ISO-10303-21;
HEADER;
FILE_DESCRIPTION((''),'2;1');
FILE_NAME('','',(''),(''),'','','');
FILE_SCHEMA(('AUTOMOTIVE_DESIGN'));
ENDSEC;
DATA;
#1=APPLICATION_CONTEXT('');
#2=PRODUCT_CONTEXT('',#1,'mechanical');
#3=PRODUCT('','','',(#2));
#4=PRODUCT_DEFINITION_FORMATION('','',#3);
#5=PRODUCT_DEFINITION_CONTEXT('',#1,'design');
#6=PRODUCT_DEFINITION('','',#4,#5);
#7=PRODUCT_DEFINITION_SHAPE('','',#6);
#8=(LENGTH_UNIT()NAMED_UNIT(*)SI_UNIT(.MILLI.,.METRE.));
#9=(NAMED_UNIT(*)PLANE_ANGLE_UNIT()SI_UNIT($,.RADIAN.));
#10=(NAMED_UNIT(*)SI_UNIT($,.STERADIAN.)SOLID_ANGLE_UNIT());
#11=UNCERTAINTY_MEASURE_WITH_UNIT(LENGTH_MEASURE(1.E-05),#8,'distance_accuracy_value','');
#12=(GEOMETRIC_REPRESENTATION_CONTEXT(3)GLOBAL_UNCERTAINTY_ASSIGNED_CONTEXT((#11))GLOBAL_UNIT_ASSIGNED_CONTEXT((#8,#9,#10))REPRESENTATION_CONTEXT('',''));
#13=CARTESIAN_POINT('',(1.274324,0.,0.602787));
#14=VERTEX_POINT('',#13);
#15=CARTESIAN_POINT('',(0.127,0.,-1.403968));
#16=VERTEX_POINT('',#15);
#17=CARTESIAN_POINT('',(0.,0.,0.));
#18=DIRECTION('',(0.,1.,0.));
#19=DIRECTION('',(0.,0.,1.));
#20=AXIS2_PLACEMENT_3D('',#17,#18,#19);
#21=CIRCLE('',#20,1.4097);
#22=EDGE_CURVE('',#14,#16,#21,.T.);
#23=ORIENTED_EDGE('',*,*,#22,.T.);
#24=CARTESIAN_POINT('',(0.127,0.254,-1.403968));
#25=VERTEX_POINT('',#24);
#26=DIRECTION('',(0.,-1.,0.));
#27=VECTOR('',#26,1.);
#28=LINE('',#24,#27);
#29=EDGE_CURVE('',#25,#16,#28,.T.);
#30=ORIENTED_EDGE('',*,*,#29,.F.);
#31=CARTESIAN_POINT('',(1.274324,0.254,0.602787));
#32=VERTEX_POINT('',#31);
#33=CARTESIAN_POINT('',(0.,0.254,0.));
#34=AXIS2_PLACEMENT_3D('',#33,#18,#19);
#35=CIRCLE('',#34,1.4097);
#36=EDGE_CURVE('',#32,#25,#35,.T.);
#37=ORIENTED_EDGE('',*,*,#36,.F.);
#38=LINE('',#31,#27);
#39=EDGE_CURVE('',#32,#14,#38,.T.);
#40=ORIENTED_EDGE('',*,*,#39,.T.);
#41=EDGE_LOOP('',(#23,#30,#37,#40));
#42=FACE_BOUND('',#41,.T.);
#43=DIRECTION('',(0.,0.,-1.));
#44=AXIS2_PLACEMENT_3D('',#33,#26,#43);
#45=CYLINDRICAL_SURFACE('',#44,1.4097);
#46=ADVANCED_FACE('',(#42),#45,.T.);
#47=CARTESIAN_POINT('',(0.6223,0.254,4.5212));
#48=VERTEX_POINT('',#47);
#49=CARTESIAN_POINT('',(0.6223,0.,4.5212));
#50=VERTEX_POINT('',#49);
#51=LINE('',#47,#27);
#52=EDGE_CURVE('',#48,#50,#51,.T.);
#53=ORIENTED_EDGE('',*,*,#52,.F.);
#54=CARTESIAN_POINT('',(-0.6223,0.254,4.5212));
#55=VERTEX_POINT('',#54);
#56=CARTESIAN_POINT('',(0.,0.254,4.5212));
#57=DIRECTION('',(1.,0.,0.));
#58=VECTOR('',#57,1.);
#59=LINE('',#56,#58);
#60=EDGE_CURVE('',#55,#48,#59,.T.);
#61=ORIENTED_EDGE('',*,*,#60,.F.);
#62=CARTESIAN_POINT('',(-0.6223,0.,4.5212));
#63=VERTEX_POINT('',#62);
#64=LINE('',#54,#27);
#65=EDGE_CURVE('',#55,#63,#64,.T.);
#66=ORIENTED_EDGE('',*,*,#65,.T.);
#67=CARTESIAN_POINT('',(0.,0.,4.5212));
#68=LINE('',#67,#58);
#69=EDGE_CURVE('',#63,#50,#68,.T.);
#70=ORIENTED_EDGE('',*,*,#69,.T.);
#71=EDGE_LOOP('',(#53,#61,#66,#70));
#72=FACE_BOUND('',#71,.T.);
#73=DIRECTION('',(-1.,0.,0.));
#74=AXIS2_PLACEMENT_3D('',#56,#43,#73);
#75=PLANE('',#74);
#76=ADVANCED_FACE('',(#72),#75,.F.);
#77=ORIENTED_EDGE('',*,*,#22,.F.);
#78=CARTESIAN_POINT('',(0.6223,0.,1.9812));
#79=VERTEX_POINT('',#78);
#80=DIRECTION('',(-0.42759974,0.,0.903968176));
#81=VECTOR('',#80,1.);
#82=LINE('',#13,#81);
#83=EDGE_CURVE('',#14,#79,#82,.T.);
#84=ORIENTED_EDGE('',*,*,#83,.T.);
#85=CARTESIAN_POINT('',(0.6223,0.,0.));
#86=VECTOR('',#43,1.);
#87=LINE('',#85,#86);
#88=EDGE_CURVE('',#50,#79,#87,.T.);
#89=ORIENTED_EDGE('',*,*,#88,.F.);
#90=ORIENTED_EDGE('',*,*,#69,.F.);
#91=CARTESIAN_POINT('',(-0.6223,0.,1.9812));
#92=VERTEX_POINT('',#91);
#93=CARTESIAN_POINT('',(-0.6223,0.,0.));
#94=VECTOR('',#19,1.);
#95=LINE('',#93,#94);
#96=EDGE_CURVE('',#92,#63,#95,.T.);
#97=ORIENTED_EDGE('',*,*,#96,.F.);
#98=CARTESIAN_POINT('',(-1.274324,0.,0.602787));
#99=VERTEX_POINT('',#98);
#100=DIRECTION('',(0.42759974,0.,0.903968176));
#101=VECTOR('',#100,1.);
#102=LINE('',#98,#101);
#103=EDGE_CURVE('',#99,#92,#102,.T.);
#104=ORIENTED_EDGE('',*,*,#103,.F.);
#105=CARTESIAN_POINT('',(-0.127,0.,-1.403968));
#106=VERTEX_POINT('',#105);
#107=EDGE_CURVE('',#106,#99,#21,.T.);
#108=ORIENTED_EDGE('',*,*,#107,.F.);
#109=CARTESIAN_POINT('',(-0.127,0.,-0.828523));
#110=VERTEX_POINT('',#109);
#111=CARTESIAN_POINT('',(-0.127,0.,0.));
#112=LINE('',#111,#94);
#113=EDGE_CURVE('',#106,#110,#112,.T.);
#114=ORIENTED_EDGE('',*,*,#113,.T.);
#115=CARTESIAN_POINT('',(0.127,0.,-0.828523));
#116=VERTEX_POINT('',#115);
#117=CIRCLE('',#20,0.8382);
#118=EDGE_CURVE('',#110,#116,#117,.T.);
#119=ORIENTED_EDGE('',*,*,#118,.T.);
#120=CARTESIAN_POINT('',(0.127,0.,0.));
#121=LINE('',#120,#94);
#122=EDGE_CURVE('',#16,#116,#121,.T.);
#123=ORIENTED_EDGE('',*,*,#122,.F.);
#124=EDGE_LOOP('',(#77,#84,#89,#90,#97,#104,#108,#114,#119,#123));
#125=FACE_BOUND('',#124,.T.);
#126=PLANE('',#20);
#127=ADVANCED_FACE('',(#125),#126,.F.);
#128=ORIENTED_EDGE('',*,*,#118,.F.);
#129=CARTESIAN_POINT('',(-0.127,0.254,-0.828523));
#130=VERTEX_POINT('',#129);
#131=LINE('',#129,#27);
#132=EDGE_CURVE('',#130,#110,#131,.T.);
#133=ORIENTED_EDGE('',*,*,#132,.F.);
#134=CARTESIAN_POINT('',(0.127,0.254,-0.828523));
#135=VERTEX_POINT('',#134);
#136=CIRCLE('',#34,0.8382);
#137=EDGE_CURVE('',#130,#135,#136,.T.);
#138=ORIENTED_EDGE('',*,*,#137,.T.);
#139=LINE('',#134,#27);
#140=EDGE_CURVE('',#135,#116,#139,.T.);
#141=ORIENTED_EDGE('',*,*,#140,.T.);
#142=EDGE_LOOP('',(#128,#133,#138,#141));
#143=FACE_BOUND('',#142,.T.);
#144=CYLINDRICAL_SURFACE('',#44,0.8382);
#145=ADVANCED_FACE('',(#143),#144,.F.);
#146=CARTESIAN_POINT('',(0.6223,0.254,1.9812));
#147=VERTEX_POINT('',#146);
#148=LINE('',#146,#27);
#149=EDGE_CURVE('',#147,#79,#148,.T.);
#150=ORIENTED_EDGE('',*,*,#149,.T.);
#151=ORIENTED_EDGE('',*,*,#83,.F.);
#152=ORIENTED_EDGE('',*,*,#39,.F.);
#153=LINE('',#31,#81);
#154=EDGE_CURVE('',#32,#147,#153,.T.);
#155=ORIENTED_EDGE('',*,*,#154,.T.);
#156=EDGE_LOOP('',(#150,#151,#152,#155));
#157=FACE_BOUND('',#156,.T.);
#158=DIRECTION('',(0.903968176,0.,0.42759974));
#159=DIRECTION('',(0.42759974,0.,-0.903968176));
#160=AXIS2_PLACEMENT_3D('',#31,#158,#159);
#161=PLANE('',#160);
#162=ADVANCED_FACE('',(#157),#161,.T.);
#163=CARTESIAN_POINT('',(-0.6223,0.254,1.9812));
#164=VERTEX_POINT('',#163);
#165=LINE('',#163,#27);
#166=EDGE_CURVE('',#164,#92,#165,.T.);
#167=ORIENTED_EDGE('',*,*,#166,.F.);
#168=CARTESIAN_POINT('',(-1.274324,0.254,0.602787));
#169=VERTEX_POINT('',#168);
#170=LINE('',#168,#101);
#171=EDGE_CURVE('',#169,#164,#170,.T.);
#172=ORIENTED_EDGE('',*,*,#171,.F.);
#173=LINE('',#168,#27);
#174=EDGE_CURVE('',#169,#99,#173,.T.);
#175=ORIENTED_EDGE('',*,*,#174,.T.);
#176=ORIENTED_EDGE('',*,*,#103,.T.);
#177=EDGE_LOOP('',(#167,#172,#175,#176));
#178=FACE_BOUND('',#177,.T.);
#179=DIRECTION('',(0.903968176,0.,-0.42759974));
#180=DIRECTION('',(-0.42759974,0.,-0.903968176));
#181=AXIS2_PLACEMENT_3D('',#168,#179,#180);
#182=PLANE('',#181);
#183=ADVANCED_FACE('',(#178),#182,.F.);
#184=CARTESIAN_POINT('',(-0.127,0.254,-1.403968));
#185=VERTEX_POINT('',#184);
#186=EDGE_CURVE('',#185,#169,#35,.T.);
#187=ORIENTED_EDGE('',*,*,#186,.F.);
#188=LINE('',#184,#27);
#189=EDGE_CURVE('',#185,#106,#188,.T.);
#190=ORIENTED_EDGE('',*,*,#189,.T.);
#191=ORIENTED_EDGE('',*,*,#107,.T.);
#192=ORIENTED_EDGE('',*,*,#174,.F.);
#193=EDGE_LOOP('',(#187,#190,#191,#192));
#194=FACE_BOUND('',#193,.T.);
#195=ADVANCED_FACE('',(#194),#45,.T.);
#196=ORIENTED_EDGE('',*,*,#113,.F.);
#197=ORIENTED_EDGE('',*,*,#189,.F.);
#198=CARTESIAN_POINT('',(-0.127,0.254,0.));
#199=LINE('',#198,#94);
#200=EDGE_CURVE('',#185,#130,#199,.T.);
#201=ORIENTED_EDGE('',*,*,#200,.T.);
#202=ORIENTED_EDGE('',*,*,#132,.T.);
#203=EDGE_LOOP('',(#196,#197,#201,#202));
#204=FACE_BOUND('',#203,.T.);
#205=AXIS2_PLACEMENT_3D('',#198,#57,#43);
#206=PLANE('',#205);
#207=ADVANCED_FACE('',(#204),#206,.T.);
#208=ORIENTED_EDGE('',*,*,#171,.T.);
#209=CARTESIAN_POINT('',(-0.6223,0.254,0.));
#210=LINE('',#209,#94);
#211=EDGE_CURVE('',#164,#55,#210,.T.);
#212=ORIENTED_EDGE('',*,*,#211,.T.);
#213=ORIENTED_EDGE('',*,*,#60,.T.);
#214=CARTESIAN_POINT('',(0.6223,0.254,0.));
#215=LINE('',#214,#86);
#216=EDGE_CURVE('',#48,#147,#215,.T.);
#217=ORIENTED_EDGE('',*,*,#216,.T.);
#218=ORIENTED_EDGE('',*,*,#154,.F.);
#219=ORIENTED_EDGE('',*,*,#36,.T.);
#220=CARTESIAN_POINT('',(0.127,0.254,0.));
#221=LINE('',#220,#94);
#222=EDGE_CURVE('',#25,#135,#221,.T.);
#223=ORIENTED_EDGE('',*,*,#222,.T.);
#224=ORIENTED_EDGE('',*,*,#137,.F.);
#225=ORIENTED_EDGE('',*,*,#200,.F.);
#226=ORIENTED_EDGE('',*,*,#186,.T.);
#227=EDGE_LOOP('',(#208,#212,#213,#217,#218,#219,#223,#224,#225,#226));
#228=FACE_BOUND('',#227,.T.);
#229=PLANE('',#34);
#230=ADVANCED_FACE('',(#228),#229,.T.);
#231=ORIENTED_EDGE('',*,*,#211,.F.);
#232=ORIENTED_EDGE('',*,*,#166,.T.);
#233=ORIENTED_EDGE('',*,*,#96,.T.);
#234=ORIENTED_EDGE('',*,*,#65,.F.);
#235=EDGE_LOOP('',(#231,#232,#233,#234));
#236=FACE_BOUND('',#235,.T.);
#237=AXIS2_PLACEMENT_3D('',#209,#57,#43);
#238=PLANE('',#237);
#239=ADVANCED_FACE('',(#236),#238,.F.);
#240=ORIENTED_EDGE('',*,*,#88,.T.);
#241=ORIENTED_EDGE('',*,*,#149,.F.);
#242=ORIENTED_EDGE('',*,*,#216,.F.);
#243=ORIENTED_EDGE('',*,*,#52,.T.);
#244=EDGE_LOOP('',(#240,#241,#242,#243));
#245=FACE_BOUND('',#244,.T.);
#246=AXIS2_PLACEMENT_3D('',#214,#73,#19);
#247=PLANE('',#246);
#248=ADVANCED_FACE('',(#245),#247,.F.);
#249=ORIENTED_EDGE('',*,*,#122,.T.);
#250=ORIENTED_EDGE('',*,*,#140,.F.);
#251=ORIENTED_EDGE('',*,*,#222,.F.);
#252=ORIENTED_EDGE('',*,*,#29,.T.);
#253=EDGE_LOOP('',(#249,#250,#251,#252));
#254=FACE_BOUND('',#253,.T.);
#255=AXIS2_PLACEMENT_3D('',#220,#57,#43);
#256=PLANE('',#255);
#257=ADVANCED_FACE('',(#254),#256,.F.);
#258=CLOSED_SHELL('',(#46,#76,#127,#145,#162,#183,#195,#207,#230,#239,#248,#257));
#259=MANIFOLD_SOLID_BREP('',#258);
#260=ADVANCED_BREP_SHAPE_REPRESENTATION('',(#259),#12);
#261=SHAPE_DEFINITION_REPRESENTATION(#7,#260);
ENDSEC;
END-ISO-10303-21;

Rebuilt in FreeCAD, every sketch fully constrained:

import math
import FreeCAD as App
import Part
import Sketcher
from FreeCAD import Vector
Q = App.Units.Quantity

doc = App.newDocument("Part")
body = doc.addObject("PartDesign::Body", "Body")

# Sketch on XZ plane
sketch1 = body.newObject("Sketcher::SketchObject", "Sketch")
sketch1.AttachmentSupport = (doc.getObject("XZ_Plane"), [""])
sketch1.MapMode = "FlatFace"
sketch1.addGeometry([
    Part.LineSegment(Vector(0.62, 1.98, 0), Vector(1.27, 0.6, 0)),  # 0
    Part.ArcOfCircle(Part.Circle(Vector(0, 0, 0), Vector(0, 0, 1), 1.41), math.radians(-85), math.radians(25)),  # 1
    Part.LineSegment(Vector(0.13, -1.4, 0), Vector(0.13, -0.83, 0)),  # 2
    Part.ArcOfCircle(Part.Circle(Vector(0, 0, 0), Vector(0, 0, 1), 0.84), math.radians(-81), math.radians(261)),  # 3
    Part.LineSegment(Vector(-0.13, -0.83, 0), Vector(-0.13, -1.4, 0)),  # 4
    Part.ArcOfCircle(Part.Circle(Vector(0, 0, 0), Vector(0, 0, 1), 1.41), math.radians(155), math.radians(265)),  # 5
    Part.LineSegment(Vector(-1.27, 0.6, 0), Vector(-0.62, 1.98, 0)),  # 6
    Part.LineSegment(Vector(-0.62, 1.98, 0), Vector(-0.62, 4.52, 0)),  # 7
    Part.LineSegment(Vector(-0.62, 4.52, 0), Vector(0.62, 4.52, 0)),  # 8
    Part.LineSegment(Vector(0.62, 4.52, 0), Vector(0.62, 1.98, 0)),  # 9
], False)
sketch1.addConstraint([
    Sketcher.Constraint("Tangent", 0, 2, 1, 2),
    Sketcher.Constraint("Coincident", 1, 1, 2, 1),
    Sketcher.Constraint("Coincident", 2, 2, 3, 1),
    Sketcher.Constraint("Coincident", 3, 2, 4, 1),
    Sketcher.Constraint("Coincident", 4, 2, 5, 2),
    Sketcher.Constraint("Tangent", 5, 1, 6, 1),
    Sketcher.Constraint("Coincident", 6, 2, 7, 1),
    Sketcher.Constraint("Coincident", 7, 2, 8, 1),
    Sketcher.Constraint("Coincident", 8, 2, 9, 1),
    Sketcher.Constraint("Coincident", 9, 2, 0, 1),
    Sketcher.Constraint("Vertical", 2),
    Sketcher.Constraint("Vertical", 4),
    Sketcher.Constraint("Vertical", 7),
    Sketcher.Constraint("Horizontal", 8),
    Sketcher.Constraint("Vertical", 9),
    Sketcher.Constraint("Coincident", 1, 3, -1, 1),
    Sketcher.Constraint("Coincident", 3, 3, -1, 1),
    Sketcher.Constraint("Coincident", 5, 3, -1, 1),
    Sketcher.Constraint("Equal", 1, 5),
    Sketcher.Constraint("Symmetric", 6, 2, 9, 2, -2),
    Sketcher.Constraint("Horizontal", 2, 2, 3, 2),
    Sketcher.Constraint("DistanceY", 7, 1, 7, 2, Q("0.1 in")),
    Sketcher.Constraint("Radius", 3, Q("0.033 in")),
    Sketcher.Constraint("Radius", 1, Q("0.0555 in")),
    Sketcher.Constraint("DistanceX", 8, 1, 8, 2, Q("0.049 in")),
    Sketcher.Constraint("DistanceX", 3, 2, 2, 2, Q("0.01 in")),
    Sketcher.Constraint("DistanceY", -1, 1, 6, 2, Q("0.078 in")),
])
pad1 = body.newObject("PartDesign::Pad", "Pad")
pad1.Profile = sketch1
pad1.Length = Q("0.01 in")
pad1.Reversed = True

doc.recompute()
